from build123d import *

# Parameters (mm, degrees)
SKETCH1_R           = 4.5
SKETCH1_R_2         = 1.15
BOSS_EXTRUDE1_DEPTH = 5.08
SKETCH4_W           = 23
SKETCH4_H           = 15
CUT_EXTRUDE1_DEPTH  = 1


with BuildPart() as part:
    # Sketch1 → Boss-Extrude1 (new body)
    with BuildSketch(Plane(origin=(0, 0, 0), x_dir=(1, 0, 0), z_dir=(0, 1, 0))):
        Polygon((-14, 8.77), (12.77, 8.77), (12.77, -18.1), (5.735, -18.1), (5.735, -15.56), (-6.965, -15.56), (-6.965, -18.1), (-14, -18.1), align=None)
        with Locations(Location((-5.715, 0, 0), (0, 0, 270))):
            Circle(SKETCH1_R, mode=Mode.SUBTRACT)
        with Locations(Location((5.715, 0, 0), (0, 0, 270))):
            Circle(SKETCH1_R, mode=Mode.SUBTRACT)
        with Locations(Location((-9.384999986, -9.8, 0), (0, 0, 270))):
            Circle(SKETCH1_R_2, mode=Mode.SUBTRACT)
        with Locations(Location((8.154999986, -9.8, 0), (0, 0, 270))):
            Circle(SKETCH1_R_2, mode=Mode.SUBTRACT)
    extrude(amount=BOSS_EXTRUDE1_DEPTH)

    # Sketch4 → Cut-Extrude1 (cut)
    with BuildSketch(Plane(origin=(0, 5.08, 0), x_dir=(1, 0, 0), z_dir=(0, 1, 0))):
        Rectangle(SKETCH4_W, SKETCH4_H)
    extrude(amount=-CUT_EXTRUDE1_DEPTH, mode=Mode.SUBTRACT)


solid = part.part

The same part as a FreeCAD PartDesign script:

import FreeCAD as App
import Part
import Sketcher
from FreeCAD import Vector


def add_polygon(sketch, points):
    """Adds a closed chain of lines whose ends are joined by coincident constraints."""
    first, n = sketch.GeometryCount, len(points)
    for a, b in zip(points, points[1:] + points[:1]):
        sketch.addGeometry(Part.LineSegment(App.Vector(*a, 0), App.Vector(*b, 0)), False)
    for i in range(n):
        sketch.addConstraint(Sketcher.Constraint("Coincident", first + i, 2, first + (i + 1) % n, 1))

doc = App.newDocument("Part")
body = doc.addObject("PartDesign::Body", "Body")

# Sketch on XZ plane
sketch1 = body.newObject("Sketcher::SketchObject", "Sketch")
sketch1.AttachmentSupport = (doc.getObject("XZ_Plane"), [""])
sketch1.MapMode = "FlatFace"
add_polygon(sketch1, [(12.77, -8.77), (-14, -8.77), (-14, 18.1), (-6.965, 18.1), (-6.965, 15.56), (5.735, 15.56), (5.735, 18.1), (12.77, 18.1)])  # lines 0-7
sketch1.addGeometry(Part.Circle(Vector(8.155, 9.8, 0), Vector(0, 0, 1), 1.15), False)  # 8
sketch1.addGeometry(Part.Circle(Vector(-9.385, 9.8, 0), Vector(0, 0, 1), 1.15), False)  # 9
sketch1.addGeometry(Part.Circle(Vector(5.715, 0, 0), Vector(0, 0, 1), 4.5), False)  # 10
sketch1.addGeometry(Part.Circle(Vector(-5.715, 0, 0), Vector(0, 0, 1), 4.5), False)  # 11
sketch1.addConstraint([
    Sketcher.Constraint("Horizontal", 0),
    Sketcher.Constraint("Vertical", 1),
    Sketcher.Constraint("Horizontal", 2),
    Sketcher.Constraint("Vertical", 3),
    Sketcher.Constraint("Horizontal", 4),
    Sketcher.Constraint("Vertical", 5),
    Sketcher.Constraint("Horizontal", 6),
    Sketcher.Constraint("Vertical", 7),
    Sketcher.Constraint("Equal", 8, 9),
    Sketcher.Constraint("Equal", 10, 11),
    Sketcher.Constraint("Symmetric", 10, 3, 11, 3, -1, 1),
    Sketcher.Constraint("PointOnObject", 10, 3, -1),
    Sketcher.Constraint("Horizontal", 8, 3, 9, 3),
    Sketcher.Constraint("Horizontal", 2, 2, 5, 2),
    Sketcher.Constraint("Equal", 2, 6),
    Sketcher.Constraint("Diameter", 10, 9.0),
    Sketcher.Constraint("Diameter", 8, 2.3),
    Sketcher.Constraint("DistanceX", 4, 1, 4, 2, 12.7),
    Sketcher.Constraint("DistanceX", 0, 2, -1, 1, 14.0),
    Sketcher.Constraint("DistanceX", 0, 2, 0, 1, 26.77),
    Sketcher.Constraint("DistanceY", 1, 1, 1, 2, 26.87),
    Sketcher.Constraint("DistanceY", 3, 2, 3, 1, 2.54),
    Sketcher.Constraint("DistanceY", -1, 1, 8, 3, 9.8),
    Sketcher.Constraint("DistanceY", -1, 1, 1, 2, 18.1),
    Sketcher.Constraint("DistanceX", 9, 3, 10, 3, 15.1),
    Sketcher.Constraint("DistanceX", 9, 3, 8, 3, 17.54),
    Sketcher.Constraint("DistanceX", 9, 3, 11, 3, 3.67),
])
pad1 = body.newObject("PartDesign::Pad", "Pad")
pad1.Profile = sketch1
pad1.Length = 5.08
pad1.Reversed = True

# Sketch on XZ plane
sketch2 = body.newObject("Sketcher::SketchObject", "Sketch001")
sketch2.AttachmentSupport = (doc.getObject("XZ_Plane"), [""])
sketch2.MapMode = "FlatFace"
sketch2.AttachmentOffset = App.Placement(Vector(0, 0, -5.08), App.Rotation())
add_polygon(sketch2, [(-11.5, -7.5), (-11.5, 7.5), (11.5, 7.5), (11.5, -7.5)])  # lines 0-3
sketch2.addConstraint([
    Sketcher.Constraint("Vertical", 0),
    Sketcher.Constraint("Horizontal", 1),
    Sketcher.Constraint("Vertical", 2),
    Sketcher.Constraint("Horizontal", 3),
    Sketcher.Constraint("Symmetric", 0, 2, 2, 2, -1, 1),
    Sketcher.Constraint("DistanceX", 1, 1, 1, 2, 23.0),
    Sketcher.Constraint("DistanceY", 0, 1, 0, 2, 15.0),
])
pocket1 = body.newObject("PartDesign::Pocket", "Pocket")
pocket1.Profile = sketch2
pocket1.Length = 1
pocket1.Reversed = True

doc.recompute()
